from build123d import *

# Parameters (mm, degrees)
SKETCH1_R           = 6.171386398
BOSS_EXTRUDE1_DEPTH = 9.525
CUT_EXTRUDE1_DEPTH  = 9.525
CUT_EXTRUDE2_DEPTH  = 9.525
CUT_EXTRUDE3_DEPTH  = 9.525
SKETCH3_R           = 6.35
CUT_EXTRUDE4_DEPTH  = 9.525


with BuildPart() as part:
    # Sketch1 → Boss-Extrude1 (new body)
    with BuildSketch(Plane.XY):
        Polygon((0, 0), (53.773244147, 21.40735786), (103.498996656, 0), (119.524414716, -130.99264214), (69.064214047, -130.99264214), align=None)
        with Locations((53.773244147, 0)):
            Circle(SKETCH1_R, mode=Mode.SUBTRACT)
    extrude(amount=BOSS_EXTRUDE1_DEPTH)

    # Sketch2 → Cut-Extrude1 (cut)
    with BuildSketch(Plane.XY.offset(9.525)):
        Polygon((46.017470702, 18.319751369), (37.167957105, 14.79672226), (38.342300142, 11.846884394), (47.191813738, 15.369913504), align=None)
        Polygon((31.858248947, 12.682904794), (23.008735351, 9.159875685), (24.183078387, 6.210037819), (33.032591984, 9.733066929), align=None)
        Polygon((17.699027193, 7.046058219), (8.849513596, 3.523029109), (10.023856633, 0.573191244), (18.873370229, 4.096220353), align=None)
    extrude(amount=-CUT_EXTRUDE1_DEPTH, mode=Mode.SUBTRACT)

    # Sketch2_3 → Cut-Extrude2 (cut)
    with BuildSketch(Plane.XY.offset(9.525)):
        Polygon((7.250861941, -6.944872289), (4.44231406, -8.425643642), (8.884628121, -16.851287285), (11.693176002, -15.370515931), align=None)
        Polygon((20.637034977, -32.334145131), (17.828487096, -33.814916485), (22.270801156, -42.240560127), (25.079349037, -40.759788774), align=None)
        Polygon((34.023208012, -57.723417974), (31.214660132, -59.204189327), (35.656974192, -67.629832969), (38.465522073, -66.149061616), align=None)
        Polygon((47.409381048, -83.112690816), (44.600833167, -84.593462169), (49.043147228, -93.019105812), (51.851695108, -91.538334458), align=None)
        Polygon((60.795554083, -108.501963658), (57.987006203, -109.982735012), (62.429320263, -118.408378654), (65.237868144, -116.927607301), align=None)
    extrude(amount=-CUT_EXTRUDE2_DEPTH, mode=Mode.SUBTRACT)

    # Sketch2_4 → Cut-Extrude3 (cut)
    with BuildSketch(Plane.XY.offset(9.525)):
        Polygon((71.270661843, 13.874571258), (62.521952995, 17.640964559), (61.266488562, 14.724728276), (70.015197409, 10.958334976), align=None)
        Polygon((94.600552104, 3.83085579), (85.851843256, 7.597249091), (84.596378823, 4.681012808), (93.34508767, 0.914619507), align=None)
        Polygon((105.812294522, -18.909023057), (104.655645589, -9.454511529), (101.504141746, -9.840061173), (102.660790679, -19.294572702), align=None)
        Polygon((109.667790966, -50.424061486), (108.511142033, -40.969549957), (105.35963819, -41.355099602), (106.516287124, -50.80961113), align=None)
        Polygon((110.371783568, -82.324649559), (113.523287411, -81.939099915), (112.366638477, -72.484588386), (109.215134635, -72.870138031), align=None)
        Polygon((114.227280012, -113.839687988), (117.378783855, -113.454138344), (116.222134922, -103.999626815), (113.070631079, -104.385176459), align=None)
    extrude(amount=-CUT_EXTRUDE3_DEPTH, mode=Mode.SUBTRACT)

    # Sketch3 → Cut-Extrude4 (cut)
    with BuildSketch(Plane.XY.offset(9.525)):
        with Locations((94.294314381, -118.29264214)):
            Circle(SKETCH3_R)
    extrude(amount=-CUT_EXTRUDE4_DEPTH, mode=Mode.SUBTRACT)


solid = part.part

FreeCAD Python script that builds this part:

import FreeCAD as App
import Part
import Sketcher

V = App.Vector
Q = App.Units.Quantity

doc = App.newDocument("Part")
body = doc.addObject("PartDesign::Body", "Body")

sketch1 = body.newObject("Sketcher::SketchObject", "Sketch")
sketch1.AttachmentSupport = (doc.getObject("XY_Plane"), [""])
sketch1.MapMode = "FlatFace"
sketch1.addGeometry(Part.LineSegment(V(54, 21, 0), V(0, 0, 0)), False)
sketch1.addGeometry(Part.LineSegment(V(0, 0, 0), V(69, -131, 0)), False)
sketch1.addGeometry(Part.LineSegment(V(69, -131, 0), V(120, -131, 0)), False)
sketch1.addGeometry(Part.LineSegment(V(120, -131, 0), V(103, 0, 0)), False)
sketch1.addGeometry(Part.LineSegment(V(103, 0, 0), V(54, 21, 0)), False)
sketch1.addGeometry(Part.Circle(V(54, 0, 0), V(0, 0, 1), 6), False)
sketch1.addConstraint(Sketcher.Constraint("Coincident", 0, 2, 1, 1))
sketch1.addConstraint(Sketcher.Constraint("Coincident", 1, 2, 2, 1))
sketch1.addConstraint(Sketcher.Constraint("Coincident", 2, 2, 3, 1))
sketch1.addConstraint(Sketcher.Constraint("Coincident", 3, 2, 4, 1))
sketch1.addConstraint(Sketcher.Constraint("Coincident", 4, 2, 0, 1))
sketch1.addConstraint(Sketcher.Constraint("Horizontal", 2))
sketch1.addConstraint(Sketcher.Constraint("Coincident", 0, 2, -1, 1))
sketch1.addConstraint(Sketcher.Constraint("PointOnObject", 5, 3, -1))
sketch1.addConstraint(Sketcher.Constraint("PointOnObject", 3, 2, -1))
sketch1.addConstraint(Sketcher.Constraint("Vertical", 5, 3, 4, 2))
sketch1.addConstraint(Sketcher.Constraint("DistanceY", 1, 2, 4, 2, Q("6 in")))
sketch1.addConstraint(Sketcher.Constraint("Diameter", 5, Q("12.342773 mm")))
sketch1.addConstraint(Sketcher.Constraint("DistanceX", 2, 1, 2, 2, Q("50.460201 mm")))
sketch1.addConstraint(Sketcher.Constraint("DistanceX", 1, 2, 3, 2, Q("1.3557001 in")))
sketch1.addConstraint(Sketcher.Constraint("DistanceX", 5, 3, 1, 2, Q("15.29097 mm")))
sketch1.addConstraint(Sketcher.Constraint("Distance", 0, Q("57.877774 mm")))
sketch1.addConstraint(Sketcher.Constraint("Distance", 1, Q("148.084226 mm")))
pad1 = body.newObject("PartDesign::Pad", "Pad")
pad1.Profile = sketch1
pad1.Length = Q("0.375 in")

sketch2 = body.newObject("Sketcher::SketchObject", "Sketch001")
sketch2.AttachmentSupport = (doc.getObject("XY_Plane"), [""])
sketch2.MapMode = "FlatFace"
sketch2.AttachmentOffset = App.Placement(V(0, 0, 0.375 * 25.4), App.Rotation())
sketch2.addGeometry(Part.LineSegment(V(46, 18.3, 0), V(37.2, 14.8, 0)), False)
sketch2.addGeometry(Part.LineSegment(V(37.2, 14.8, 0), V(38.3, 11.8, 0)), False)
sketch2.addGeometry(Part.LineSegment(V(38.3, 11.8, 0), V(47.2, 15.4, 0)), False)
sketch2.addGeometry(Part.LineSegment(V(47.2, 15.4, 0), V(46, 18.3, 0)), False)
sketch2.addGeometry(Part.LineSegment(V(31.9, 12.7, 0), V(23, 9.2, 0)), False)
sketch2.addGeometry(Part.LineSegment(V(23, 9.2, 0), V(24.2, 6.2, 0)), False)
sketch2.addGeometry(Part.LineSegment(V(24.2, 6.2, 0), V(33, 9.7, 0)), False)
sketch2.addGeometry(Part.LineSegment(V(33, 9.7, 0), V(31.9, 12.7, 0)), False)
sketch2.addGeometry(Part.LineSegment(V(17.7, 7, 0), V(8.8, 3.5, 0)), False)
sketch2.addGeometry(Part.LineSegment(V(8.8, 3.5, 0), V(10, 0.6, 0)), False)
sketch2.addGeometry(Part.LineSegment(V(10, 0.6, 0), V(18.9, 4.1, 0)), False)
sketch2.addGeometry(Part.LineSegment(V(18.9, 4.1, 0), V(17.7, 7, 0)), False)
sketch2.addConstraint(Sketcher.Constraint("Coincident", 0, 2, 1, 1))
sketch2.addConstraint(Sketcher.Constraint("Coincident", 1, 2, 2, 1))
sketch2.addConstraint(Sketcher.Constraint("Coincident", 2, 2, 3, 1))
sketch2.addConstraint(Sketcher.Constraint("Coincident", 3, 2, 0, 1))
sketch2.addConstraint(Sketcher.Constraint("Coincident", 4, 2, 5, 1))
sketch2.addConstraint(Sketcher.Constraint("Coincident", 5, 2, 6, 1))
sketch2.addConstraint(Sketcher.Constraint("Coincident", 6, 2, 7, 1))
sketch2.addConstraint(Sketcher.Constraint("Coincident", 7, 2, 4, 1))
sketch2.addConstraint(Sketcher.Constraint("Coincident", 8, 2, 9, 1))
sketch2.addConstraint(Sketcher.Constraint("Coincident", 9, 2, 10, 1))
sketch2.addConstraint(Sketcher.Constraint("Coincident", 10, 2, 11, 1))
sketch2.addConstraint(Sketcher.Constraint("Coincident", 11, 2, 8, 1))
sketch2.addConstraint(Sketcher.Constraint("Perpendicular", 0, 1))
sketch2.addConstraint(Sketcher.Constraint("Perpendicular", 1, 2))
sketch2.addConstraint(Sketcher.Constraint("Perpendicular", 2, 3))
sketch2.addConstraint(Sketcher.Constraint("Perpendicular", 3, 4))
sketch2.addConstraint(Sketcher.Constraint("Perpendicular", 4, 5))
sketch2.addConstraint(Sketcher.Constraint("Perpendicular", 5, 6))
sketch2.addConstraint(Sketcher.Constraint("Perpendicular", 6, 7))
sketch2.addConstraint(Sketcher.Constraint("Perpendicular", 7, 8))
sketch2.addConstraint(Sketcher.Constraint("Perpendicular", 8, 9))
sketch2.addConstraint(Sketcher.Constraint("Perpendicular", 9, 10))
sketch2.addConstraint(Sketcher.Constraint("Perpendicular", 10, 11))
sketch2.addConstraint(Sketcher.Constraint("Equal", 2, 4))
sketch2.addConstraint(Sketcher.Constraint("Equal", 3, 5))
sketch2.addConstraint(Sketcher.Constraint("Equal", 6, 8))
sketch2.addConstraint(Sketcher.Constraint("Equal", 7, 9))
sketch2.addConstraint(Sketcher.Constraint("Distance", 0, Q("0.375 in")))
sketch2.addConstraint(Sketcher.Constraint("Distance", 1, Q("0.125 in")))
sketch2.addConstraint(Sketcher.Constraint("DistanceX", -1, 1, 1, 2, Q("38.3423 mm")))
sketch2.addConstraint(Sketcher.Constraint("DistanceX", -1, 1, 3, 2, Q("46.017471 mm")))
sketch2.addConstraint(Sketcher.Constraint("DistanceY", -1, 1, 3, 2, Q("18.319751 mm")))
sketch2.addConstraint(Sketcher.Constraint("DistanceX", -1, 1, 5, 2, Q("24.183078 mm")))
sketch2.addConstraint(Sketcher.Constraint("DistanceY", -1, 1, 8, 2, Q("3.523029 mm")))
sketch2.addConstraint(Sketcher.Constraint("DistanceX", -1, 1, 10, 2, Q("18.87337 mm")))
sketch2.addConstraint(Sketcher.Constraint("DistanceY", 4, 2, 1, 2, Q("2.687009 mm")))
pocket1 = body.newObject("PartDesign::Pocket", "Pocket")
pocket1.Profile = sketch2
pocket1.Length = Q("0.375 in")

sketch3 = body.newObject("Sketcher::SketchObject", "Sketch002")
sketch3.AttachmentSupport = (doc.getObject("XY_Plane"), [""])
sketch3.MapMode = "FlatFace"
sketch3.AttachmentOffset = App.Placement(V(0, 0, 0.375 * 25.4), App.Rotation())
sketch3.addGeometry(Part.LineSegment(V(7.3, -6.9, 0), V(4.4, -8.4, 0)), False)
sketch3.addGeometry(Part.LineSegment(V(4.4, -8.4, 0), V(8.9, -16.9, 0)), False)
sketch3.addGeometry(Part.LineSegment(V(8.9, -16.9, 0), V(11.7, -15.4, 0)), False)
sketch3.addGeometry(Part.LineSegment(V(11.7, -15.4, 0), V(7.3, -6.9, 0)), False)
sketch3.addGeometry(Part.LineSegment(V(20.6, -32.3, 0), V(17.8, -33.8, 0)), False)
sketch3.addGeometry(Part.LineSegment(V(17.8, -33.8, 0), V(22.3, -42.2, 0)), False)
sketch3.addGeometry(Part.LineSegment(V(22.3, -42.2, 0), V(25.1, -40.8, 0)), False)
sketch3.addGeometry(Part.LineSegment(V(25.1, -40.8, 0), V(20.6, -32.3, 0)), False)
sketch3.addGeometry(Part.LineSegment(V(34, -57.7, 0), V(31.2, -59.2, 0)), False)
sketch3.addGeometry(Part.LineSegment(V(31.2, -59.2, 0), V(35.7, -67.6, 0)), False)
sketch3.addGeometry(Part.LineSegment(V(35.7, -67.6, 0), V(38.5, -66.1, 0)), False)
sketch3.addGeometry(Part.LineSegment(V(38.5, -66.1, 0), V(34, -57.7, 0)), False)
sketch3.addGeometry(Part.LineSegment(V(47.4, -83.1, 0), V(44.6, -84.6, 0)), False)
sketch3.addGeometry(Part.LineSegment(V(44.6, -84.6, 0), V(49, -93, 0)), False)
sketch3.addGeometry(Part.LineSegment(V(49, -93, 0), V(51.9, -91.5, 0)), False)
sketch3.addGeometry(Part.LineSegment(V(51.9, -91.5, 0), V(47.4, -83.1, 0)), False)
sketch3.addGeometry(Part.LineSegment(V(60.8, -108.5, 0), V(58, -110, 0)), False)
sketch3.addGeometry(Part.LineSegment(V(58, -110, 0), V(62.4, -118.4, 0)), False)
sketch3.addGeometry(Part.LineSegment(V(62.4, -118.4, 0), V(65.2, -116.9, 0)), False)
sketch3.addGeometry(Part.LineSegment(V(65.2, -116.9, 0), V(60.8, -108.5, 0)), False)
sketch3.addConstraint(Sketcher.Constraint("Coincident", 0, 2, 1, 1))
sketch3.addConstraint(Sketcher.Constraint("Coincident", 1, 2, 2, 1))
sketch3.addConstraint(Sketcher.Constraint("Coincident", 2, 2, 3, 1))
sketch3.addConstraint(Sketcher.Constraint("Coincident", 3, 2, 0, 1))
sketch3.addConstraint(Sketcher.Constraint("Coincident", 4, 2, 5, 1))
sketch3.addConstraint(Sketcher.Constraint("Coincident", 5, 2, 6, 1))
sketch3.addConstraint(Sketcher.Constraint("Coincident", 6, 2, 7, 1))
sketch3.addConstraint(Sketcher.Constraint("Coincident", 7, 2, 4, 1))
sketch3.addConstraint(Sketcher.Constraint("Coincident", 8, 2, 9, 1))
sketch3.addConstraint(Sketcher.Constraint("Coincident", 9, 2, 10, 1))
sketch3.addConstraint(Sketcher.Constraint("Coincident", 10, 2, 11, 1))
sketch3.addConstraint(Sketcher.Constraint("Coincident", 11, 2, 8, 1))
sketch3.addConstraint(Sketcher.Constraint("Coincident", 12, 2, 13, 1))
sketch3.addConstraint(Sketcher.Constraint("Coincident", 13, 2, 14, 1))
sketch3.addConstraint(Sketcher.Constraint("Coincident", 14, 2, 15, 1))
sketch3.addConstraint(Sketcher.Constraint("Coincident", 15, 2, 12, 1))
sketch3.addConstraint(Sketcher.Constraint("Coincident", 16, 2, 17, 1))
sketch3.addConstraint(Sketcher.Constraint("Coincident", 17, 2, 18, 1))
sketch3.addConstraint(Sketcher.Constraint("Coincident", 18, 2, 19, 1))
sketch3.addConstraint(Sketcher.Constraint("Coincident", 19, 2, 16, 1))
sketch3.addConstraint(Sketcher.Constraint("Perpendicular", 0, 1))
sketch3.addConstraint(Sketcher.Constraint("Perpendicular", 1, 2))
sketch3.addConstraint(Sketcher.Constraint("Perpendicular", 2, 3))
sketch3.addConstraint(Sketcher.Constraint("Perpendicular", 3, 4))
sketch3.addConstraint(Sketcher.Constraint("Perpendicular", 4, 5))
sketch3.addConstraint(Sketcher.Constraint("Perpendicular", 5, 6))
sketch3.addConstraint(Sketcher.Constraint("Perpendicular", 6, 7))
sketch3.addConstraint(Sketcher.Constraint("Perpendicular", 7, 8))
sketch3.addConstraint(Sketcher.Constraint("Perpendicular", 8, 9))
sketch3.addConstraint(Sketcher.Constraint("Perpendicular", 9, 10))
sketch3.addConstraint(Sketcher.Constraint("Perpendicular", 10, 11))
sketch3.addConstraint(Sketcher.Constraint("Perpendicular", 11, 12))
sketch3.addConstraint(Sketcher.Constraint("Perpendicular", 12, 13))
sketch3.addConstraint(Sketcher.Constraint("Perpendicular", 13, 14))
sketch3.addConstraint(Sketcher.Constraint("Perpendicular", 14, 15))
sketch3.addConstraint(Sketcher.Constraint("Perpendicular", 15, 16))
sketch3.addConstraint(Sketcher.Constraint("Perpendicular", 16, 17))
sketch3.addConstraint(Sketcher.Constraint("Perpendicular", 17, 18))
sketch3.addConstraint(Sketcher.Constraint("Perpendicular", 18, 19))
sketch3.addConstraint(Sketcher.Constraint("Equal", 2, 4))
sketch3.addConstraint(Sketcher.Constraint("Equal", 3, 5))
sketch3.addConstraint(Sketcher.Constraint("Equal", 6, 8))
sketch3.addConstraint(Sketcher.Constraint("Equal", 7, 9))
sketch3.addConstraint(Sketcher.Constraint("Equal", 10, 12))
sketch3.addConstraint(Sketcher.Constraint("Equal", 11, 13))
sketch3.addConstraint(Sketcher.Constraint("Equal", 14, 16))
sketch3.addConstraint(Sketcher.Constraint("Equal", 15, 17))
sketch3.addConstraint(Sketcher.Constraint("Distance", 0, Q("0.125 in")))
sketch3.addConstraint(Sketcher.Constraint("Distance", 1, Q("0.375 in")))
sketch3.addConstraint(Sketcher.Constraint("DistanceX", -1, 1, 5, 2, Q("22.270801 mm")))
sketch3.addConstraint(Sketcher.Constraint("DistanceY", 4, 2, 2, 2, Q("18.444401 mm")))
sketch3.addConstraint(Sketcher.Constraint("DistanceY", 6, 2, 1, 2, Q("23.908501 mm")))
sketch3.addConstraint(Sketcher.Constraint("DistanceY", 8, 2, 6, 2, Q("18.444401 mm")))
sketch3.addConstraint(Sketcher.Constraint("DistanceY", 12, 2, 10, 2, Q("18.444401 mm")))
sketch3.addConstraint(Sketcher.Constraint("DistanceY", 16, 2, 14, 2, Q("18.444401 mm")))
sketch3.addConstraint(Sketcher.Constraint("DistanceX", -1, 1, 1, 2, Q("8.884628 mm")))
sketch3.addConstraint(Sketcher.Constraint("DistanceY", 5, 2, -1, 1, Q("42.24056 mm")))
sketch3.addConstraint(Sketcher.Constraint("DistanceX", -1, 1, 8, 2, Q("31.21466 mm")))
sketch3.addConstraint(Sketcher.Constraint("DistanceX", -1, 1, 15, 2, Q("47.409381 mm")))
sketch3.addConstraint(Sketcher.Constraint("DistanceX", -1, 1, 17, 2, Q("62.42932 mm")))
pocket2 = body.newObject("PartDesign::Pocket", "Pocket001")
pocket2.Profile = sketch3
pocket2.Length = Q("0.375 in")

sketch4 = body.newObject("Sketcher::SketchObject", "Sketch003")
sketch4.AttachmentSupport = (doc.getObject("XY_Plane"), [""])
sketch4.MapMode = "FlatFace"
sketch4.AttachmentOffset = App.Placement(V(0, 0, 0.375 * 25.4), App.Rotation())
sketch4.addGeometry(Part.LineSegment(V(71.3, 13.9, 0), V(62.5, 17.6, 0)), False)
sketch4.addGeometry(Part.LineSegment(V(62.5, 17.6, 0), V(61.3, 14.7, 0)), False)
sketch4.addGeometry(Part.LineSegment(V(61.3, 14.7, 0), V(70, 11, 0)), False)
sketch4.addGeometry(Part.LineSegment(V(70, 11, 0), V(71.3, 13.9, 0)), False)
sketch4.addGeometry(Part.LineSegment(V(94.6, 3.8, 0), V(85.9, 7.6, 0)), False)
sketch4.addGeometry(Part.LineSegment(V(85.9, 7.6, 0), V(84.6, 4.7, 0)), False)
sketch4.addGeometry(Part.LineSegment(V(84.6, 4.7, 0), V(93.3, 0.9, 0)), False)
sketch4.addGeometry(Part.LineSegment(V(93.3, 0.9, 0), V(94.6, 3.8, 0)), False)
sketch4.addGeometry(Part.LineSegment(V(105.8, -18.9, 0), V(104.7, -9.5, 0)), False)
sketch4.addGeometry(Part.LineSegment(V(104.7, -9.5, 0), V(101.5, -9.8, 0)), False)
sketch4.addGeometry(Part.LineSegment(V(101.5, -9.8, 0), V(102.7, -19.3, 0)), False)
sketch4.addGeometry(Part.LineSegment(V(102.7, -19.3, 0), V(105.8, -18.9, 0)), False)
sketch4.addGeometry(Part.LineSegment(V(109.7, -50.4, 0), V(108.5, -41, 0)), False)
sketch4.addGeometry(Part.LineSegment(V(108.5, -41, 0), V(105.4, -41.4, 0)), False)
sketch4.addGeometry(Part.LineSegment(V(105.4, -41.4, 0), V(106.5, -50.8, 0)), False)
sketch4.addGeometry(Part.LineSegment(V(106.5, -50.8, 0), V(109.7, -50.4, 0)), False)
sketch4.addGeometry(Part.LineSegment(V(110.4, -82.3, 0), V(113.5, -81.9, 0)), False)
sketch4.addGeometry(Part.LineSegment(V(113.5, -81.9, 0), V(112.4, -72.5, 0)), False)
sketch4.addGeometry(Part.LineSegment(V(112.4, -72.5, 0), V(109.2, -72.9, 0)), False)
sketch4.addGeometry(Part.LineSegment(V(109.2, -72.9, 0), V(110.4, -82.3, 0)), False)
sketch4.addGeometry(Part.LineSegment(V(114.2, -113.8, 0), V(117.4, -113.5, 0)), False)
sketch4.addGeometry(Part.LineSegment(V(117.4, -113.5, 0), V(116.2, -104, 0)), False)
sketch4.addGeometry(Part.LineSegment(V(116.2, -104, 0), V(113.1, -104.4, 0)), False)
sketch4.addGeometry(Part.LineSegment(V(113.1, -104.4, 0), V(114.2, -113.8, 0)), False)
sketch4.addConstraint(Sketcher.Constraint("Coincident", 0, 2, 1, 1))
sketch4.addConstraint(Sketcher.Constraint("Coincident", 1, 2, 2, 1))
sketch4.addConstraint(Sketcher.Constraint("Coincident", 2, 2, 3, 1))
sketch4.addConstraint(Sketcher.Constraint("Coincident", 3, 2, 0, 1))
sketch4.addConstraint(Sketcher.Constraint("Coincident", 4, 2, 5, 1))
sketch4.addConstraint(Sketcher.Constraint("Coincident", 5, 2, 6, 1))
sketch4.addConstraint(Sketcher.Constraint("Coincident", 6, 2, 7, 1))
sketch4.addConstraint(Sketcher.Constraint("Coincident", 7, 2, 4, 1))
sketch4.addConstraint(Sketcher.Constraint("Coincident", 8, 2, 9, 1))
sketch4.addConstraint(Sketcher.Constraint("Coincident", 9, 2, 10, 1))
sketch4.addConstraint(Sketcher.Constraint("Coincident", 10, 2, 11, 1))
sketch4.addConstraint(Sketcher.Constraint("Coincident", 11, 2, 8, 1))
sketch4.addConstraint(Sketcher.Constraint("Coincident", 12, 2, 13, 1))
sketch4.addConstraint(Sketcher.Constraint("Coincident", 13, 2, 14, 1))
sketch4.addConstraint(Sketcher.Constraint("Coincident", 14, 2, 15, 1))
sketch4.addConstraint(Sketcher.Constraint("Coincident", 15, 2, 12, 1))
sketch4.addConstraint(Sketcher.Constraint("Coincident", 16, 2, 17, 1))
sketch4.addConstraint(Sketcher.Constraint("Coincident", 17, 2, 18, 1))
sketch4.addConstraint(Sketcher.Constraint("Coincident", 18, 2, 19, 1))
sketch4.addConstraint(Sketcher.Constraint("Coincident", 19, 2, 16, 1))
sketch4.addConstraint(Sketcher.Constraint("Coincident", 20, 2, 21, 1))
sketch4.addConstraint(Sketcher.Constraint("Coincident", 21, 2, 22, 1))
sketch4.addConstraint(Sketcher.Constraint("Coincident", 22, 2, 23, 1))
sketch4.addConstraint(Sketcher.Constraint("Coincident", 23, 2, 20, 1))
sketch4.addConstraint(Sketcher.Constraint("Perpendicular", 0, 1))
sketch4.addConstraint(Sketcher.Constraint("Perpendicular", 1, 2))
sketch4.addConstraint(Sketcher.Constraint("Perpendicular", 2, 3))
sketch4.addConstraint(Sketcher.Constraint("Perpendicular", 3, 4))
sketch4.addConstraint(Sketcher.Constraint("Perpendicular", 4, 5))
sketch4.addConstraint(Sketcher.Constraint("Perpendicular", 5, 6))
sketch4.addConstraint(Sketcher.Constraint("Perpendicular", 6, 7))
sketch4.addConstraint(Sketcher.Constraint("Perpendicular", 8, 9))
sketch4.addConstraint(Sketcher.Constraint("Perpendicular", 9, 10))
sketch4.addConstraint(Sketcher.Constraint("Perpendicular", 10, 11))
sketch4.addConstraint(Sketcher.Constraint("Perpendicular", 11, 12))
sketch4.addConstraint(Sketcher.Constraint("Perpendicular", 12, 13))
sketch4.addConstraint(Sketcher.Constraint("Perpendicular", 13, 14))
sketch4.addConstraint(Sketcher.Constraint("Perpendicular", 14, 15))
sketch4.addConstraint(Sketcher.Constraint("Parallel", 15, 16))
sketch4.addConstraint(Sketcher.Constraint("Perpendicular", 16, 17))
sketch4.addConstraint(Sketcher.Constraint("Perpendicular", 17, 18))
sketch4.addConstraint(Sketcher.Constraint("Perpendicular", 18, 19))
sketch4.addConstraint(Sketcher.Constraint("Perpendicular", 19, 20))
sketch4.addConstraint(Sketcher.Constraint("Perpendicular", 20, 21))
sketch4.addConstraint(Sketcher.Constraint("Perpendicular", 21, 22))
sketch4.addConstraint(Sketcher.Constraint("Perpendicular", 22, 23))
sketch4.addConstraint(Sketcher.Constraint("Equal", 2, 4))
sketch4.addConstraint(Sketcher.Constraint("Equal", 3, 5))
sketch4.addConstraint(Sketcher.Constraint("Equal", 6, 8))
sketch4.addConstraint(Sketcher.Constraint("Equal", 7, 9))
sketch4.addConstraint(Sketcher.Constraint("Equal", 10, 12))
sketch4.addConstraint(Sketcher.Constraint("Equal", 11, 13))
sketch4.addConstraint(Sketcher.Constraint("Equal", 15, 16))
sketch4.addConstraint(Sketcher.Constraint("Equal", 14, 17))
sketch4.addConstraint(Sketcher.Constraint("Equal", 18, 20))
sketch4.addConstraint(Sketcher.Constraint("Equal", 19, 21))
sketch4.addConstraint(Sketcher.Constraint("Distance", 0, Q("0.375 in")))
sketch4.addConstraint(Sketcher.Constraint("Distance", 1, Q("0.125 in")))
sketch4.addConstraint(Sketcher.Constraint("DistanceY", 13, 2, -1, 1, Q("41.3551 mm")))
sketch4.addConstraint(Sketcher.Constraint("DistanceY", 16, 2, -1, 1, Q("81.9391 mm")))
sketch4.addConstraint(Sketcher.Constraint("DistanceX", 1, 2, 6, 2, Q("32.078599 mm")))
sketch4.addConstraint(Sketcher.Constraint("DistanceX", 4, 2, 9, 2, Q("15.652298 mm")))
sketch4.addConstraint(Sketcher.Constraint("DistanceX", 9, 2, 12, 2, Q("7.007 mm")))
sketch4.addConstraint(Sketcher.Constraint("DistanceX", 14, 2, 16, 2, Q("7.007 mm")))
sketch4.addConstraint(Sketcher.Constraint("DistanceX", 19, 2, 20, 2, Q("7.007 mm")))
sketch4.addConstraint(Sketcher.Constraint("DistanceY", 20, 2, 18, 2, Q("40.584 mm")))
sketch4.addConstraint(Sketcher.Constraint("DistanceX", -1, 1, 1, 2, Q("61.266489 mm")))
sketch4.addConstraint(Sketcher.Constraint("DistanceY", -1, 1, 1, 2, Q("14.724728 mm")))
sketch4.addConstraint(Sketcher.Constraint("DistanceX", -1, 1, 3, 2, Q("71.270662 mm")))
sketch4.addConstraint(Sketcher.Constraint("DistanceY", -1, 1, 4, 2, Q("7.597249 mm")))
sketch4.addConstraint(Sketcher.Constraint("DistanceY", 8, 2, -1, 1, Q("9.454512 mm")))
sketch4.addConstraint(Sketcher.Constraint("DistanceY", 9, 2, -1, 1, Q("9.840061 mm")))
pocket3 = body.newObject("PartDesign::Pocket", "Pocket002")
pocket3.Profile = sketch4
pocket3.Length = Q("0.375 in")

sketch5 = body.newObject("Sketcher::SketchObject", "Sketch004")
sketch5.AttachmentSupport = (doc.getObject("XY_Plane"), [""])
sketch5.MapMode = "FlatFace"
sketch5.AttachmentOffset = App.Placement(V(0, 0, 0.375 * 25.4), App.Rotation())
sketch5.addGeometry(Part.Circle(V(94, -118, 0), V(0, 0, 1), 6), False)
sketch5.addConstraint(Sketcher.Constraint("Diameter", 0, Q("0.5 in")))
sketch5.addConstraint(Sketcher.Constraint("DistanceX", -1, 1, 0, 3, Q("94.294314 mm")))
sketch5.addConstraint(Sketcher.Constraint("DistanceY", 0, 3, -1, 1, Q("118.292642 mm")))
pocket4 = body.newObject("PartDesign::Pocket", "Pocket003")
pocket4.Profile = sketch5
pocket4.Length = Q("0.375 in")

doc.recompute()
